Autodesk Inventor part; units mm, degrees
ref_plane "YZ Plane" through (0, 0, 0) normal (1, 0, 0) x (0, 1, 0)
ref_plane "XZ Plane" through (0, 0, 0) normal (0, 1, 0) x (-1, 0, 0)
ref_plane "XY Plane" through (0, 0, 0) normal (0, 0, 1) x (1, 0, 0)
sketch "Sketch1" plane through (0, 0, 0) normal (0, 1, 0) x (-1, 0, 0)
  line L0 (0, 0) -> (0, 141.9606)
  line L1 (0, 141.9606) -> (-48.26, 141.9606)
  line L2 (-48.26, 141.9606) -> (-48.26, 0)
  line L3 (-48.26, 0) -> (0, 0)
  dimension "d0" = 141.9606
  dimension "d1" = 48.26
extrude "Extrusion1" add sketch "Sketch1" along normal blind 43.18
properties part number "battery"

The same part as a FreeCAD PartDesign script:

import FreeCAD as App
import Part
import Sketcher

V = App.Vector
Q = App.Units.Quantity

doc = App.newDocument("Part")
params = doc.addObject("Spreadsheet::Sheet", "Params")
for row, (alias, value) in enumerate([
    ("sketch1_width", "1.9 in"),
    ("sketch1_height", "5.589 in"),
    ("pad1_length", "1.7 in"),
], start=1):
    params.set(f"A{row}", alias)
    params.set(f"B{row}", "=" + value)
    params.setAlias(f"B{row}", alias)

body = doc.addObject("PartDesign::Body", "Body")

# Sketch on XZ plane
sketch1 = body.newObject("Sketcher::SketchObject", "Sketch")
sketch1.AttachmentSupport = (doc.getObject("XZ_Plane"), [""])
sketch1.MapMode = "FlatFace"
sketch1.addGeometry([
    Part.LineSegment(V(48.26, 0, 0), V(0, 0, 0)),
    Part.LineSegment(V(0, 0, 0), V(0, 141.9606, 0)),
    Part.LineSegment(V(0, 141.9606, 0), V(48.26, 141.9606, 0)),
    Part.LineSegment(V(48.26, 141.9606, 0), V(48.26, 0, 0)),
], False)
sketch1.addConstraint([
    Sketcher.Constraint("Coincident", 0, 2, 1, 1),
    Sketcher.Constraint("Coincident", 1, 2, 2, 1),
    Sketcher.Constraint("Coincident", 2, 2, 3, 1),
    Sketcher.Constraint("Coincident", 3, 2, 0, 1),
    Sketcher.Constraint("Horizontal", 0),
    Sketcher.Constraint("Vertical", 1),
    Sketcher.Constraint("Horizontal", 2),
    Sketcher.Constraint("Vertical", 3),
    Sketcher.Constraint("Coincident", 0, 2, -1, 1),
    Sketcher.Constraint("DistanceX", 0, 2, 0, 1, Q("1.9 in")),
    Sketcher.Constraint("DistanceY", 1, 1, 1, 2, Q("5.589 in")),
])
sketch1.setExpression("Constraints[9]", "Params.sketch1_width")
sketch1.setExpression("Constraints[10]", "Params.sketch1_height")
pad1 = body.newObject("PartDesign::Pad", "Pad")
pad1.Profile = sketch1
pad1.setExpression("Length", "Params.pad1_length")
pad1.Reversed = True

doc.recompute()
